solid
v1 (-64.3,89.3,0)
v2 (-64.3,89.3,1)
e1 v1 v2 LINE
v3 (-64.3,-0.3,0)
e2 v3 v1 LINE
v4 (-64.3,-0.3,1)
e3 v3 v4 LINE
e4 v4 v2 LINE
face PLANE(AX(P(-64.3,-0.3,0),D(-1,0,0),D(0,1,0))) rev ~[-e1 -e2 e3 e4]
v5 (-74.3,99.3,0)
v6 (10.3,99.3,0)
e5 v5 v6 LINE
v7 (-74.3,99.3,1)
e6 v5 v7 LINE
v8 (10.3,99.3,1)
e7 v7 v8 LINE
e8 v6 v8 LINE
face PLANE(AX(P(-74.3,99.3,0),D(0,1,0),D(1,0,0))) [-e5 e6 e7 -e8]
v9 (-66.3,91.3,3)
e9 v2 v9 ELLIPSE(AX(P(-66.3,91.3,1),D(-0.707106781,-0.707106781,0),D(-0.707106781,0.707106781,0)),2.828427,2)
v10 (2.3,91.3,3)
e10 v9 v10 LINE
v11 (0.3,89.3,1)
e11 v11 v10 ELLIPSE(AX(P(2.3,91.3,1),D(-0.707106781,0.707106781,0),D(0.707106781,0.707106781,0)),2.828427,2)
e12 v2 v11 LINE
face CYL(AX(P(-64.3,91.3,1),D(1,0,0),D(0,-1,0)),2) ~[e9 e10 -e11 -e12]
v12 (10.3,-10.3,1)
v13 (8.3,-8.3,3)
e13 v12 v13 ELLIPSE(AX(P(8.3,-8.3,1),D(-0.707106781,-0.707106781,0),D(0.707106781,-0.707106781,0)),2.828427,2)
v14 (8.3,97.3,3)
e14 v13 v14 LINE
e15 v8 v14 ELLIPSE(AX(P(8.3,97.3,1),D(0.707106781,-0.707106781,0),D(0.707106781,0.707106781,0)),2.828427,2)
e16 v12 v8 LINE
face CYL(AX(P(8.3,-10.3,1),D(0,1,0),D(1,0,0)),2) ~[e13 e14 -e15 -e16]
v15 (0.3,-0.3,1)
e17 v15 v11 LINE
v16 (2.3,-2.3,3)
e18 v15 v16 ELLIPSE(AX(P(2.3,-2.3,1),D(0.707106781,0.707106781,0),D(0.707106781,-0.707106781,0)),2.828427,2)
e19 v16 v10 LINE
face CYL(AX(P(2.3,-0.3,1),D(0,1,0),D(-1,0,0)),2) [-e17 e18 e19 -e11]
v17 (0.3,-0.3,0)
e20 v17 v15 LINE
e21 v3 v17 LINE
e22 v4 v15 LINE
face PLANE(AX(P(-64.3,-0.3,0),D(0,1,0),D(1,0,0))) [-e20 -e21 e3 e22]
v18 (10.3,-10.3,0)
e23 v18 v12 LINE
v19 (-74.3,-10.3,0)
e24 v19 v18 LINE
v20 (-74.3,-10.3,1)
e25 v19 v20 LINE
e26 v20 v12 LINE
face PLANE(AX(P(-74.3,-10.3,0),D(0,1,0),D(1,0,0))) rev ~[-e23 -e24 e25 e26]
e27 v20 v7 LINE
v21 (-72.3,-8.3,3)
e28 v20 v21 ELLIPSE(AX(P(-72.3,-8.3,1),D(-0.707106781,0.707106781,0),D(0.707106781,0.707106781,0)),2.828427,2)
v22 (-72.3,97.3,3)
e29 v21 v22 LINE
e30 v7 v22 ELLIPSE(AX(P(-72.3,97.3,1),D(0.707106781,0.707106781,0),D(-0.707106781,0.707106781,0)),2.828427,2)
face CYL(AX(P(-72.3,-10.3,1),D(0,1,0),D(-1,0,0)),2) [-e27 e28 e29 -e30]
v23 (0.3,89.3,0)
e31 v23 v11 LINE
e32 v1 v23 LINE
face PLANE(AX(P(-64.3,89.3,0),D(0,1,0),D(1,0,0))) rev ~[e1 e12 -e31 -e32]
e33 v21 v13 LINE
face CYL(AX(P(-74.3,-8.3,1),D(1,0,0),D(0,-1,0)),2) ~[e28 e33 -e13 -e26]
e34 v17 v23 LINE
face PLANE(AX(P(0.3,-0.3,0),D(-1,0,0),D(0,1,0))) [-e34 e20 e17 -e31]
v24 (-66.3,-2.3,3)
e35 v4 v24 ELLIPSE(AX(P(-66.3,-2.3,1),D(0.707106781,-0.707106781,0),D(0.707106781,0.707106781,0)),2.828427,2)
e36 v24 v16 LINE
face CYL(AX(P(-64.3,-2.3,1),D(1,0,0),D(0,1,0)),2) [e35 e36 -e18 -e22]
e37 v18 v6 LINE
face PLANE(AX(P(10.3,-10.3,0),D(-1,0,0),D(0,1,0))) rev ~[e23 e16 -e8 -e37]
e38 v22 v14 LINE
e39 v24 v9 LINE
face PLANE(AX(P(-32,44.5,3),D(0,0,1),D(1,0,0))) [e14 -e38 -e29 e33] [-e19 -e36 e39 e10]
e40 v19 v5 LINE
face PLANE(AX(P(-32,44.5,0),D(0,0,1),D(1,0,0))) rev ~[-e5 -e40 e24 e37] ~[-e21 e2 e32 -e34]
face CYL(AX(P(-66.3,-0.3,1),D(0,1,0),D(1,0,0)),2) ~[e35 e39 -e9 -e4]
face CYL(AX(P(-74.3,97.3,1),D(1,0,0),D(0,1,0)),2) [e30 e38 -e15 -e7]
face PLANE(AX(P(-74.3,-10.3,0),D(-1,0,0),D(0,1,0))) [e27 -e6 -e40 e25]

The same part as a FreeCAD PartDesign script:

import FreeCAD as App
import Part
import Sketcher

V = App.Vector
Q = App.Units.Quantity


def edges_at(feature, points):
    """Names of the edges that pass closest to the given points."""
    edges = feature.Shape.Edges
    near = lambda p: min(range(len(edges)), key=lambda i: edges[i].distToShape(Part.Vertex(*p))[0])
    return sorted({f"Edge{near(p) + 1}" for p in points})


def add_polygon(sketch, points):
    """Adds a closed chain of lines whose ends are joined by coincident constraints."""
    first, n = sketch.GeometryCount, len(points)
    for a, b in zip(points, points[1:] + points[:1]):
        sketch.addGeometry(Part.LineSegment(App.Vector(*a, 0), App.Vector(*b, 0)), False)
    for i in range(n):
        sketch.addConstraint(Sketcher.Constraint("Coincident", first + i, 2, first + (i + 1) % n, 1))

doc = App.newDocument("Part")
body = doc.addObject("PartDesign::Body", "Body")

# Sketch on XY plane
sketch1 = doc.addObject("Sketcher::SketchObject", "Sketch")
body.addObject(sketch1)
sketch1.AttachmentSupport = (doc.XY_Plane, [""])
sketch1.MapMode = "FlatFace"
add_polygon(sketch1, [(-74, 99), (-74, -10), (10, -10), (10, 99)])  # lines 0-3
add_polygon(sketch1, [(0, 0), (-64, 0), (-64, 89), (0, 89)])  # lines 4-7
sketch1.addConstraint(Sketcher.Constraint("Vertical", 0))
sketch1.addConstraint(Sketcher.Constraint("Horizontal", 1))
sketch1.addConstraint(Sketcher.Constraint("Vertical", 2))
sketch1.addConstraint(Sketcher.Constraint("Horizontal", 3))
sketch1.addConstraint(Sketcher.Constraint("Horizontal", 4))
sketch1.addConstraint(Sketcher.Constraint("Vertical", 5))
sketch1.addConstraint(Sketcher.Constraint("Horizontal", 6))
sketch1.addConstraint(Sketcher.Constraint("Vertical", 7))
sketch1.addConstraint(Sketcher.Constraint("DistanceX", 1, 1, 1, 2, Q("84.6 mm")))
sketch1.addConstraint(Sketcher.Constraint("DistanceX", 4, 2, 4, 1, Q("64.6 mm")))
sketch1.addConstraint(Sketcher.Constraint("DistanceY", 0, 2, 0, 1, Q("109.6 mm")))
sketch1.addConstraint(Sketcher.Constraint("DistanceY", 5, 1, 5, 2, Q("89.6 mm")))
sketch1.addConstraint(Sketcher.Constraint("DistanceX", 0, 2, 4, 2, Q("10 mm")))
sketch1.addConstraint(Sketcher.Constraint("DistanceY", 0, 2, 4, 2, Q("10 mm")))
sketch1.addConstraint(Sketcher.Constraint("DistanceX", 0, 2, -1, 1, Q("74.3 mm")))
sketch1.addConstraint(Sketcher.Constraint("DistanceY", 0, 2, -1, 1, Q("10.3 mm")))
pad1 = doc.addObject("PartDesign::Pad", "Pad")
body.addObject(pad1)
pad1.Profile = sketch1
pad1.Length = 3
doc.recompute()

fillet = doc.addObject("PartDesign::Fillet", "Fillet")
body.addObject(fillet)
fillet.Base = (pad1, edges_at(pad1, [
    (-74.3, 44.5, 3),
    (-32, -10.3, 3),
    (10.3, 44.5, 3),
    (-32, 99.3, 3),
    (-32, -0.3, 3),
    (-64.3, 44.5, 3),
    (-32, 89.3, 3),
    (0.3, 44.5, 3),
]))
fillet.Radius = 2

doc.recompute()
